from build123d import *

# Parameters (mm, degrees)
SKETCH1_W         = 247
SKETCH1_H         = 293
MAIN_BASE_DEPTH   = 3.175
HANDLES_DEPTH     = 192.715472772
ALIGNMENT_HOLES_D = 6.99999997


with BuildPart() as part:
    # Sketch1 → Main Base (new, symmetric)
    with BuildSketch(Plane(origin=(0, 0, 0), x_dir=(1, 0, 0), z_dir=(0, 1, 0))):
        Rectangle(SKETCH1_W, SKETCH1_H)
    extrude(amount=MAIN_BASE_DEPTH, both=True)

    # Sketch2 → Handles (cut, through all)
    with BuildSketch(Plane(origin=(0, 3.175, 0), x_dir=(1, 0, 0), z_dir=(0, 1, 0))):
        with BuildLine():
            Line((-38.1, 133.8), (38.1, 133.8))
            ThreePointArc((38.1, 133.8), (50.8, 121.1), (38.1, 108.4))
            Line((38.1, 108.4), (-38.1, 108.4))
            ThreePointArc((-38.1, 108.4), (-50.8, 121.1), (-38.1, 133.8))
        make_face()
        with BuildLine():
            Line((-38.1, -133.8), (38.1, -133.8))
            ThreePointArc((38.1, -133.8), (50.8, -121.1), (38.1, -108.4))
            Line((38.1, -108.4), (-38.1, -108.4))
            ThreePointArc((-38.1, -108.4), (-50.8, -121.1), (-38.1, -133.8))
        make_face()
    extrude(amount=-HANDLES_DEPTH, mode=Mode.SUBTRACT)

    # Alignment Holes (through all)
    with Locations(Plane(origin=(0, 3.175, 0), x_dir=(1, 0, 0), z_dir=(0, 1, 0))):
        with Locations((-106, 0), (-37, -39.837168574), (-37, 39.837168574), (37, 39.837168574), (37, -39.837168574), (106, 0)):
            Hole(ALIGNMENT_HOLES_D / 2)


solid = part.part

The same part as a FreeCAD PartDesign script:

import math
import FreeCAD as App
import Part
import Sketcher

doc = App.newDocument("Part")
params = doc.addObject("Spreadsheet::Sheet", "Params")
for row, (alias, value) in enumerate([
    ("sketch1_width", "247 mm"),
    ("sketch1_height", "293 mm"),
    ("pad1_length", "6.35 mm"),
    ("sketch2_radius", "12.7 mm"),
    ("sketch2_width", "76.2 mm"),
    ("sketch3_diameter", "7 mm"),
    ("hole_diameter", "7 mm"),
], start=1):
    params.set(f"A{row}", alias)
    params.set(f"B{row}", "=" + value)
    params.setAlias(f"B{row}", alias)

body = doc.addObject("PartDesign::Body", "Body")

# Sketch on XZ plane
sketch1 = body.newObject("Sketcher::SketchObject", "Sketch")
sketch1.AttachmentSupport = (doc.getObject("XZ_Plane"), [""])
sketch1.MapMode = "FlatFace"
sketch1.addGeometry(Part.LineSegment(App.Vector(-123.5, -146.5, 0), App.Vector(-123.5, 146.5, 0)), False)
sketch1.addGeometry(Part.LineSegment(App.Vector(-123.5, 146.5, 0), App.Vector(123.5, 146.5, 0)), False)
sketch1.addGeometry(Part.LineSegment(App.Vector(123.5, 146.5, 0), App.Vector(123.5, -146.5, 0)), False)
sketch1.addGeometry(Part.LineSegment(App.Vector(123.5, -146.5, 0), App.Vector(-123.5, -146.5, 0)), False)
sketch1.addConstraint(Sketcher.Constraint("Coincident", 0, 2, 1, 1))
sketch1.addConstraint(Sketcher.Constraint("Coincident", 1, 2, 2, 1))
sketch1.addConstraint(Sketcher.Constraint("Coincident", 2, 2, 3, 1))
sketch1.addConstraint(Sketcher.Constraint("Coincident", 3, 2, 0, 1))
sketch1.addConstraint(Sketcher.Constraint("Vertical", 0))
sketch1.addConstraint(Sketcher.Constraint("Horizontal", 1))
sketch1.addConstraint(Sketcher.Constraint("Vertical", 2))
sketch1.addConstraint(Sketcher.Constraint("Horizontal", 3))
sketch1.addConstraint(Sketcher.Constraint("Symmetric", 0, 2, 2, 2, -1, 1))
sketch1.addConstraint(Sketcher.Constraint("DistanceX", 1, 1, 1, 2, 247.0))
sketch1.addConstraint(Sketcher.Constraint("DistanceY", 0, 1, 0, 2, 293.0))
sketch1.setExpression("Constraints[9]", "Params.sketch1_width")
sketch1.setExpression("Constraints[10]", "Params.sketch1_height")
pad1 = body.newObject("PartDesign::Pad", "Pad")
pad1.Profile = sketch1
pad1.setExpression("Length", "Params.pad1_length")
pad1.Midplane = True

# Sketch on XZ plane
sketch2 = body.newObject("Sketcher::SketchObject", "Sketch001")
sketch2.AttachmentSupport = (doc.getObject("XZ_Plane"), [""])
sketch2.MapMode = "FlatFace"
sketch2.AttachmentOffset = App.Placement(App.Vector(0, 0, -3.175), App.Rotation())
sketch2.addGeometry(Part.LineSegment(App.Vector(38.1, -133.8, 0), App.Vector(-38.1, -133.8, 0)), False)
sketch2.addGeometry(Part.ArcOfCircle(Part.Circle(App.Vector(-38.1, -121.1, 0), App.Vector(0, 0, 1), 12.7), math.radians(90), math.radians(270)), False)
sketch2.addGeometry(Part.LineSegment(App.Vector(-38.1, -108.4, 0), App.Vector(38.1, -108.4, 0)), False)
sketch2.addGeometry(Part.ArcOfCircle(Part.Circle(App.Vector(38.1, -121.1, 0), App.Vector(0, 0, 1), 12.7), math.radians(-90), math.radians(90)), False)
sketch2.addGeometry(Part.LineSegment(App.Vector(-38.1, 133.8, 0), App.Vector(38.1, 133.8, 0)), False)
sketch2.addGeometry(Part.ArcOfCircle(Part.Circle(App.Vector(38.1, 121.1, 0), App.Vector(0, 0, 1), 12.7), math.radians(-90), math.radians(90)), False)
sketch2.addGeometry(Part.LineSegment(App.Vector(38.1, 108.4, 0), App.Vector(-38.1, 108.4, 0)), False)
sketch2.addGeometry(Part.ArcOfCircle(Part.Circle(App.Vector(-38.1, 121.1, 0), App.Vector(0, 0, 1), 12.7), math.radians(90), math.radians(270)), False)
sketch2.addConstraint(Sketcher.Constraint("Tangent", 0, 2, 1, 2))
sketch2.addConstraint(Sketcher.Constraint("Tangent", 1, 1, 2, 1))
sketch2.addConstraint(Sketcher.Constraint("Tangent", 2, 2, 3, 2))
sketch2.addConstraint(Sketcher.Constraint("Tangent", 3, 1, 0, 1))
sketch2.addConstraint(Sketcher.Constraint("Tangent", 4, 2, 5, 2))
sketch2.addConstraint(Sketcher.Constraint("Tangent", 5, 1, 6, 1))
sketch2.addConstraint(Sketcher.Constraint("Tangent", 6, 2, 7, 2))
sketch2.addConstraint(Sketcher.Constraint("Tangent", 7, 1, 4, 1))
sketch2.addConstraint(Sketcher.Constraint("Horizontal", 0))
sketch2.addConstraint(Sketcher.Constraint("Horizontal", 2))
sketch2.addConstraint(Sketcher.Constraint("Horizontal", 4))
sketch2.addConstraint(Sketcher.Constraint("Horizontal", 6))
sketch2.addConstraint(Sketcher.Constraint("Equal", 3, 5))
sketch2.addConstraint(Sketcher.Constraint("Symmetric", 1, 3, 5, 3, -1, 1))
sketch2.addConstraint(Sketcher.Constraint("Vertical", 3, 3, 5, 3))
sketch2.addConstraint(Sketcher.Constraint("Vertical", 1, 3, 7, 3))
sketch2.addConstraint(Sketcher.Constraint("Radius", 1, 12.7))
sketch2.addConstraint(Sketcher.Constraint("DistanceX", 0, 2, 0, 1, 76.2))
sketch2.addConstraint(Sketcher.Constraint("DistanceY", 1, 3, -1, 1, 121.1))
sketch2.setExpression("Constraints[16]", "Params.sketch2_radius")
sketch2.setExpression("Constraints[17]", "Params.sketch2_width")
pocket1 = body.newObject("PartDesign::Pocket", "Pocket")
pocket1.Profile = sketch2
pocket1.Type = "ThroughAll"
pocket1.Reversed = True

# Sketch on XZ plane
sketch3 = body.newObject("Sketcher::SketchObject", "Sketch002")
sketch3.AttachmentSupport = (doc.getObject("XZ_Plane"), [""])
sketch3.MapMode = "FlatFace"
sketch3.AttachmentOffset = App.Placement(App.Vector(0, 0, -3.175), App.Rotation())
sketch3.addGeometry(Part.Circle(App.Vector(-106, 0, 0), App.Vector(0, 0, 1), 3.5), False)
sketch3.addGeometry(Part.Circle(App.Vector(-37, 39.837169, 0), App.Vector(0, 0, 1), 3.5), False)
sketch3.addGeometry(Part.Circle(App.Vector(-37, -39.837169, 0), App.Vector(0, 0, 1), 3.5), False)
sketch3.addGeometry(Part.Circle(App.Vector(37, -39.837169, 0), App.Vector(0, 0, 1), 3.5), False)
sketch3.addGeometry(Part.Circle(App.Vector(37, 39.837169, 0), App.Vector(0, 0, 1), 3.5), False)
sketch3.addGeometry(Part.Circle(App.Vector(106, 0, 0), App.Vector(0, 0, 1), 3.5), False)
sketch3.addConstraint(Sketcher.Constraint("Equal", 0, 1))
sketch3.addConstraint(Sketcher.Constraint("Equal", 1, 2))
sketch3.addConstraint(Sketcher.Constraint("Equal", 2, 3))
sketch3.addConstraint(Sketcher.Constraint("Equal", 3, 4))
sketch3.addConstraint(Sketcher.Constraint("Equal", 4, 5))
sketch3.addConstraint(Sketcher.Constraint("Symmetric", 1, 3, 3, 3, -1, 1))
sketch3.addConstraint(Sketcher.Constraint("Symmetric", 2, 3, 4, 3, -1, 1))
sketch3.addConstraint(Sketcher.Constraint("Symmetric", 0, 3, 5, 3, -1, 1))
sketch3.addConstraint(Sketcher.Constraint("Symmetric", 2, 3, 3, 3, -2))
sketch3.addConstraint(Sketcher.Constraint("PointOnObject", 0, 3, -1))
sketch3.addConstraint(Sketcher.Constraint("Diameter", 0, 7.0))
sketch3.addConstraint(Sketcher.Constraint("DistanceX", 0, 3, -1, 1, 106.0))
sketch3.addConstraint(Sketcher.Constraint("DistanceX", 1, 3, -1, 1, 37.0))
sketch3.addConstraint(Sketcher.Constraint("DistanceY", -1, 1, 1, 3, 39.837169))
sketch3.setExpression("Constraints[10]", "Params.sketch3_diameter")
doc.recompute()
hole = body.newObject("PartDesign::Hole", "Hole")
hole.Profile = sketch3
hole.ThreadType = "None"
hole.setExpression("Diameter", "Params.hole_diameter")
hole.DepthType = "ThroughAll"
hole.Reversed = True

doc.recompute()
